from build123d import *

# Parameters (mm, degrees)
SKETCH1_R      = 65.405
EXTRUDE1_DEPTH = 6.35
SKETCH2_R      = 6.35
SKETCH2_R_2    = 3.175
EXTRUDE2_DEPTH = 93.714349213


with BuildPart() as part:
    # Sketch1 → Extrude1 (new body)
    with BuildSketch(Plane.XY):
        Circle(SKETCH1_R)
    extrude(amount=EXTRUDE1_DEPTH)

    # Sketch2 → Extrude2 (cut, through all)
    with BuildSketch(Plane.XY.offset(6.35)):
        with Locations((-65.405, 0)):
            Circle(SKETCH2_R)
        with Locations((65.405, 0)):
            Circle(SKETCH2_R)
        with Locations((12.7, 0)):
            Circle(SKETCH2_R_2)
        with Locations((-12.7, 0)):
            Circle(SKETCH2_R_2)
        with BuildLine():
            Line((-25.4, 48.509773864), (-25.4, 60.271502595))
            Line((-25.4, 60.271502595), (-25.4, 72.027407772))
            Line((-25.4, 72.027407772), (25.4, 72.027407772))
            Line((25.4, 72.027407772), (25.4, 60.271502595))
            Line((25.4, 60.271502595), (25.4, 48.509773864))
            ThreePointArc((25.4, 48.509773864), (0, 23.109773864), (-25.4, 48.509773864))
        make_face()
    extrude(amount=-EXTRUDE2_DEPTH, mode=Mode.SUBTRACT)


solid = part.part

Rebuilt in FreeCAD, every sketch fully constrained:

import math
import FreeCAD as App
import Part
import Sketcher
Q = App.Units.Quantity

doc = App.newDocument("Part")
body = doc.addObject("PartDesign::Body", "Body")

sketch1 = body.newObject("Sketcher::SketchObject", "Sketch")
sketch1.AttachmentSupport = (doc.getObject("XY_Plane"), [""])
sketch1.MapMode = "FlatFace"
sketch1.addGeometry(Part.Circle(App.Vector(0, 0, 0), App.Vector(0, 0, 1), 65), False)
sketch1.addConstraint(Sketcher.Constraint("Coincident", 0, 3, -1, 1))
sketch1.addConstraint(Sketcher.Constraint("Diameter", 0, Q("5.15 in")))
pad1 = body.newObject("PartDesign::Pad", "Pad")
pad1.Profile = sketch1
pad1.Length = Q("0.25 in")

sketch2 = body.newObject("Sketcher::SketchObject", "Sketch001")
sketch2.AttachmentSupport = (doc.getObject("XY_Plane"), [""])
sketch2.MapMode = "FlatFace"
sketch2.AttachmentOffset = App.Placement(App.Vector(0, 0, 0.25 * 25.4), App.Rotation())
sketch2.addGeometry(Part.Circle(App.Vector(-65.4, 0, 0), App.Vector(0, 0, 1), 6.3), False)
sketch2.addGeometry(Part.Circle(App.Vector(65.4, 0, 0), App.Vector(0, 0, 1), 6.3), False)
sketch2.addGeometry(Part.Circle(App.Vector(12.7, 0, 0), App.Vector(0, 0, 1), 3.2), False)
sketch2.addGeometry(Part.Circle(App.Vector(-12.7, 0, 0), App.Vector(0, 0, 1), 3.2), False)
sketch2.addGeometry(Part.LineSegment(App.Vector(-25.4, 72, 0), App.Vector(-25.4, 48.5, 0)), False)
sketch2.addGeometry(Part.ArcOfCircle(Part.Circle(App.Vector(0, 48.5, 0), App.Vector(0, 0, 1), 25.4), math.radians(180), math.radians(360)), False)
sketch2.addGeometry(Part.LineSegment(App.Vector(25.4, 48.5, 0), App.Vector(25.4, 72, 0)), False)
sketch2.addGeometry(Part.LineSegment(App.Vector(25.4, 72, 0), App.Vector(-25.4, 72, 0)), False)
sketch2.addConstraint(Sketcher.Constraint("Tangent", 4, 2, 5, 1))
sketch2.addConstraint(Sketcher.Constraint("Tangent", 5, 2, 6, 1))
sketch2.addConstraint(Sketcher.Constraint("Coincident", 6, 2, 7, 1))
sketch2.addConstraint(Sketcher.Constraint("Coincident", 7, 2, 4, 1))
sketch2.addConstraint(Sketcher.Constraint("Vertical", 4))
sketch2.addConstraint(Sketcher.Constraint("Vertical", 6))
sketch2.addConstraint(Sketcher.Constraint("Horizontal", 7))
sketch2.addConstraint(Sketcher.Constraint("Equal", 0, 1))
sketch2.addConstraint(Sketcher.Constraint("Equal", 2, 3))
sketch2.addConstraint(Sketcher.Constraint("Symmetric", 0, 3, 1, 3, -1, 1))
sketch2.addConstraint(Sketcher.Constraint("Symmetric", 2, 3, 3, 3, -1, 1))
sketch2.addConstraint(Sketcher.Constraint("PointOnObject", 0, 3, -1))
sketch2.addConstraint(Sketcher.Constraint("PointOnObject", 2, 3, -1))
sketch2.addConstraint(Sketcher.Constraint("PointOnObject", 5, 3, -2))
sketch2.addConstraint(Sketcher.Constraint("Radius", 5, Q("1 in")))
sketch2.addConstraint(Sketcher.Constraint("Diameter", 0, Q("0.5 in")))
sketch2.addConstraint(Sketcher.Constraint("Diameter", 2, Q("0.25 in")))
sketch2.addConstraint(Sketcher.Constraint("DistanceX", 3, 3, 2, 3, Q("1 in")))
sketch2.addConstraint(Sketcher.Constraint("DistanceX", 0, 3, 1, 3, Q("5.15 in")))
sketch2.addConstraint(Sketcher.Constraint("DistanceY", 4, 2, 4, 1, Q("23.517634 mm")))
sketch2.addConstraint(Sketcher.Constraint("DistanceY", -1, 1, 5, 3, Q("48.509774 mm")))
pocket1 = body.newObject("PartDesign::Pocket", "Pocket")
pocket1.Profile = sketch2
pocket1.Type = "ThroughAll"

doc.recompute()
